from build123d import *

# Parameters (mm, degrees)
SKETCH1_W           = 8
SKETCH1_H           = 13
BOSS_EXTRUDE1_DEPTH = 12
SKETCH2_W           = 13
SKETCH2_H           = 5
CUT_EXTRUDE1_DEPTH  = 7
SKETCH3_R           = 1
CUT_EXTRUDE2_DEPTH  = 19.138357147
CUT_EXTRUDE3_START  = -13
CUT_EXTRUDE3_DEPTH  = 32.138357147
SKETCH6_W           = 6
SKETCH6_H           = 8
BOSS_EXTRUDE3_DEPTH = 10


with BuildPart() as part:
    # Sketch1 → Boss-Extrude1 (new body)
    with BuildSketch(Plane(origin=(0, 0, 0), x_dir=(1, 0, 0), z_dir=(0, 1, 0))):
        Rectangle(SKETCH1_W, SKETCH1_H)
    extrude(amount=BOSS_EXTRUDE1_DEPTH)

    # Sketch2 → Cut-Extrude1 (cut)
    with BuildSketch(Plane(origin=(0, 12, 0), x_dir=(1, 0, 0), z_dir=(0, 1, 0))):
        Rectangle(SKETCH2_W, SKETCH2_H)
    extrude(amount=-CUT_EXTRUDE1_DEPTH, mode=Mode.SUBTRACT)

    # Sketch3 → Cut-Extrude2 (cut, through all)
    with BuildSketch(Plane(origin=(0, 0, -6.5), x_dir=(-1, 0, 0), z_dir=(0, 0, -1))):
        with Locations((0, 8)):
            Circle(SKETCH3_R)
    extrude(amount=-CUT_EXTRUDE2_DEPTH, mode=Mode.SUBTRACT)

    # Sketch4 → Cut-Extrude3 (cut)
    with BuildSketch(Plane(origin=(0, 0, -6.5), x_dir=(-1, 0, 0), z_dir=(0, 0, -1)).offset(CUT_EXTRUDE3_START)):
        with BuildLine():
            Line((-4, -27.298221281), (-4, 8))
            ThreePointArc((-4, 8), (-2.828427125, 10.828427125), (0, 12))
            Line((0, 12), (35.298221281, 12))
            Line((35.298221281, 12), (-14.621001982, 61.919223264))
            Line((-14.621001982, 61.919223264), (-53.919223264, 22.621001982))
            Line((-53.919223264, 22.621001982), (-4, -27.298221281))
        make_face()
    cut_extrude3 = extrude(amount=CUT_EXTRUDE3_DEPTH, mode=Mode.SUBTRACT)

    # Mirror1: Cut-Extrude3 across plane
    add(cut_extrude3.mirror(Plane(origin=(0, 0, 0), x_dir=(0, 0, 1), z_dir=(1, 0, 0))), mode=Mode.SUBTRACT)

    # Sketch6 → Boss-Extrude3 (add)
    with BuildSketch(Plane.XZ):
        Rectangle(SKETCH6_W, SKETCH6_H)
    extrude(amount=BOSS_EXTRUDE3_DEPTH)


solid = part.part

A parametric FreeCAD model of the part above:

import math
import FreeCAD as App
import Part
import Sketcher

V = App.Vector
Q = App.Units.Quantity

doc = App.newDocument("Part")
params = doc.addObject("Spreadsheet::Sheet", "Params")
for row, (alias, value) in enumerate([
    ("sketch1_width", "8 mm"),
    ("sketch1_height", "13 mm"),
    ("pad1_length", "12 mm"),
    ("sketch2_width", "13 mm"),
    ("sketch2_height", "5 mm"),
    ("pocket1_length", "7 mm"),
    ("sketch3_diameter", "2 mm"),
    ("sketch4_radius", "4 mm"),
    ("pocket3_length", "32.138357 mm"),
    ("sketch5_width", "6 mm"),
    ("sketch5_height", "8 mm"),
    ("pad2_length", "10 mm"),
], start=1):
    params.set(f"A{row}", alias)
    params.set(f"B{row}", "=" + value)
    params.setAlias(f"B{row}", alias)

body = doc.addObject("PartDesign::Body", "Body")

# Sketch on XZ plane
sketch1 = body.newObject("Sketcher::SketchObject", "Sketch")
sketch1.AttachmentSupport = (doc.getObject("XZ_Plane"), [""])
sketch1.MapMode = "FlatFace"
sketch1.addGeometry([
    Part.LineSegment(V(-4, -6, 0), V(-4, 6, 0)),
    Part.LineSegment(V(-4, 6, 0), V(4, 6, 0)),
    Part.LineSegment(V(4, 6, 0), V(4, -6, 0)),
    Part.LineSegment(V(4, -6, 0), V(-4, -6, 0)),
], False)
sketch1.addConstraint([
    Sketcher.Constraint("Coincident", 0, 2, 1, 1),
    Sketcher.Constraint("Coincident", 1, 2, 2, 1),
    Sketcher.Constraint("Coincident", 2, 2, 3, 1),
    Sketcher.Constraint("Coincident", 3, 2, 0, 1),
    Sketcher.Constraint("Vertical", 0),
    Sketcher.Constraint("Horizontal", 1),
    Sketcher.Constraint("Vertical", 2),
    Sketcher.Constraint("Horizontal", 3),
    Sketcher.Constraint("Symmetric", 0, 2, 2, 2, -1, 1),
    Sketcher.Constraint("DistanceX", 1, 1, 1, 2, Q("8 mm")),
    Sketcher.Constraint("DistanceY", 0, 1, 0, 2, Q("13 mm")),
])
sketch1.setExpression("Constraints[9]", "Params.sketch1_width")
sketch1.setExpression("Constraints[10]", "Params.sketch1_height")
pad1 = body.newObject("PartDesign::Pad", "Pad")
pad1.Profile = sketch1
pad1.setExpression("Length", "Params.pad1_length")
pad1.Reversed = True

# Sketch on XZ plane
sketch2 = body.newObject("Sketcher::SketchObject", "Sketch001")
sketch2.AttachmentSupport = (doc.getObject("XZ_Plane"), [""])
sketch2.MapMode = "FlatFace"
sketch2.AttachmentOffset = App.Placement(V(0, 0, -12), App.Rotation())
sketch2.addGeometry([
    Part.LineSegment(V(-6, -2, 0), V(-6, 2, 0)),
    Part.LineSegment(V(-6, 2, 0), V(6, 2, 0)),
    Part.LineSegment(V(6, 2, 0), V(6, -2, 0)),
    Part.LineSegment(V(6, -2, 0), V(-6, -2, 0)),
], False)
sketch2.addConstraint([
    Sketcher.Constraint("Coincident", 0, 2, 1, 1),
    Sketcher.Constraint("Coincident", 1, 2, 2, 1),
    Sketcher.Constraint("Coincident", 2, 2, 3, 1),
    Sketcher.Constraint("Coincident", 3, 2, 0, 1),
    Sketcher.Constraint("Vertical", 0),
    Sketcher.Constraint("Horizontal", 1),
    Sketcher.Constraint("Vertical", 2),
    Sketcher.Constraint("Horizontal", 3),
    Sketcher.Constraint("Symmetric", 0, 2, 2, 2, -1, 1),
    Sketcher.Constraint("DistanceX", 1, 1, 1, 2, Q("13 mm")),
    Sketcher.Constraint("DistanceY", 0, 1, 0, 2, Q("5 mm")),
])
sketch2.setExpression("Constraints[9]", "Params.sketch2_width")
sketch2.setExpression("Constraints[10]", "Params.sketch2_height")
pocket1 = body.newObject("PartDesign::Pocket", "Pocket")
pocket1.Profile = sketch2
pocket1.setExpression("Length", "Params.pocket1_length")
pocket1.Reversed = True

# Sketch on XY plane
sketch3 = body.newObject("Sketcher::SketchObject", "Sketch002")
sketch3.AttachmentSupport = (doc.getObject("XY_Plane"), [""])
sketch3.MapMode = "FlatFace"
sketch3.AttachmentOffset = App.Placement(V(0, 0, -6.5), App.Rotation())
sketch3.addGeometry(Part.Circle(V(0, 8, 0), V(0, 0, 1), 1), False)
sketch3.addConstraint([
    Sketcher.Constraint("PointOnObject", 0, 3, -2),
    Sketcher.Constraint("Diameter", 0, Q("2 mm")),
    Sketcher.Constraint("DistanceY", -1, 1, 0, 3, Q("8 mm")),
])
sketch3.setExpression("Constraints[1]", "Params.sketch3_diameter")
pocket2 = body.newObject("PartDesign::Pocket", "Pocket001")
pocket2.Profile = sketch3
pocket2.Type = "ThroughAll"
pocket2.Reversed = True

# Sketch on XY plane
sketch4 = body.newObject("Sketcher::SketchObject", "Sketch003")
sketch4.AttachmentSupport = (doc.getObject("XY_Plane"), [""])
sketch4.MapMode = "FlatFace"
sketch4.AttachmentOffset = App.Placement(V(0, 0, 6.5), App.Rotation())
sketch4.addGeometry([
    Part.LineSegment(V(4, -27.3, 0), V(4, 8, 0)),  # 0
    Part.ArcOfCircle(Part.Circle(V(0, 8, 0), V(0, 0, 1), 4), math.radians(0), math.radians(90)),  # 1
    Part.LineSegment(V(0, 12, 0), V(-35.3, 12, 0)),  # 2
    Part.LineSegment(V(-35.3, 12, 0), V(14.6, 61.9, 0)),  # 3
    Part.LineSegment(V(14.6, 61.9, 0), V(53.9, 22.6, 0)),  # 4
    Part.LineSegment(V(53.9, 22.6, 0), V(4, -27.3, 0)),  # 5
], False)
sketch4.addConstraint([
    Sketcher.Constraint("Tangent", 0, 2, 1, 1),
    Sketcher.Constraint("Tangent", 1, 2, 2, 1),
    Sketcher.Constraint("Coincident", 2, 2, 3, 1),
    Sketcher.Constraint("Coincident", 3, 2, 4, 1),
    Sketcher.Constraint("Coincident", 4, 2, 5, 1),
    Sketcher.Constraint("Coincident", 5, 2, 0, 1),
    Sketcher.Constraint("Vertical", 0),
    Sketcher.Constraint("Horizontal", 2),
    Sketcher.Constraint("PointOnObject", 1, 3, -2),
    Sketcher.Constraint("Perpendicular", 3, 4),
    Sketcher.Constraint("Perpendicular", 4, 5),
    Sketcher.Constraint("Equal", 2, 0),
    Sketcher.Constraint("Equal", 3, 5),
    Sketcher.Constraint("Radius", 1, Q("4 mm")),
    Sketcher.Constraint("DistanceY", -1, 1, 1, 3, Q("8 mm")),
    Sketcher.Constraint("DistanceX", -1, 1, 3, 2, Q("14.621002 mm")),
    Sketcher.Constraint("DistanceX", 2, 2, 2, 1, Q("35.298221 mm")),
])
sketch4.setExpression("Constraints[13]", "Params.sketch4_radius")
pocket3 = body.newObject("PartDesign::Pocket", "Pocket002")
pocket3.Profile = sketch4
pocket3.setExpression("Length", "Params.pocket3_length")
doc.recompute()

mirrored = body.newObject("PartDesign::Mirrored", "Mirrored")
mirrored.Originals = [pocket3]
mirrored.MirrorPlane = (doc.getObject("YZ_Plane"), [""])
body.Tip = mirrored

# Sketch on XZ plane
sketch5 = body.newObject("Sketcher::SketchObject", "Sketch004")
sketch5.AttachmentSupport = (doc.getObject("XZ_Plane"), [""])
sketch5.MapMode = "FlatFace"
sketch5.addGeometry([
    Part.LineSegment(V(-3, 4, 0), V(-3, -4, 0)),
    Part.LineSegment(V(-3, -4, 0), V(3, -4, 0)),
    Part.LineSegment(V(3, -4, 0), V(3, 4, 0)),
    Part.LineSegment(V(3, 4, 0), V(-3, 4, 0)),
], False)
sketch5.addConstraint([
    Sketcher.Constraint("Coincident", 0, 2, 1, 1),
    Sketcher.Constraint("Coincident", 1, 2, 2, 1),
    Sketcher.Constraint("Coincident", 2, 2, 3, 1),
    Sketcher.Constraint("Coincident", 3, 2, 0, 1),
    Sketcher.Constraint("Vertical", 0),
    Sketcher.Constraint("Horizontal", 1),
    Sketcher.Constraint("Vertical", 2),
    Sketcher.Constraint("Horizontal", 3),
    Sketcher.Constraint("Symmetric", 0, 2, 2, 2, -1, 1),
    Sketcher.Constraint("DistanceX", 1, 1, 1, 2, Q("6 mm")),
    Sketcher.Constraint("DistanceY", 0, 2, 0, 1, Q("8 mm")),
])
sketch5.setExpression("Constraints[9]", "Params.sketch5_width")
sketch5.setExpression("Constraints[10]", "Params.sketch5_height")
pad2 = body.newObject("PartDesign::Pad", "Pad001")
pad2.Profile = sketch5
pad2.setExpression("Length", "Params.pad2_length")

doc.recompute()
